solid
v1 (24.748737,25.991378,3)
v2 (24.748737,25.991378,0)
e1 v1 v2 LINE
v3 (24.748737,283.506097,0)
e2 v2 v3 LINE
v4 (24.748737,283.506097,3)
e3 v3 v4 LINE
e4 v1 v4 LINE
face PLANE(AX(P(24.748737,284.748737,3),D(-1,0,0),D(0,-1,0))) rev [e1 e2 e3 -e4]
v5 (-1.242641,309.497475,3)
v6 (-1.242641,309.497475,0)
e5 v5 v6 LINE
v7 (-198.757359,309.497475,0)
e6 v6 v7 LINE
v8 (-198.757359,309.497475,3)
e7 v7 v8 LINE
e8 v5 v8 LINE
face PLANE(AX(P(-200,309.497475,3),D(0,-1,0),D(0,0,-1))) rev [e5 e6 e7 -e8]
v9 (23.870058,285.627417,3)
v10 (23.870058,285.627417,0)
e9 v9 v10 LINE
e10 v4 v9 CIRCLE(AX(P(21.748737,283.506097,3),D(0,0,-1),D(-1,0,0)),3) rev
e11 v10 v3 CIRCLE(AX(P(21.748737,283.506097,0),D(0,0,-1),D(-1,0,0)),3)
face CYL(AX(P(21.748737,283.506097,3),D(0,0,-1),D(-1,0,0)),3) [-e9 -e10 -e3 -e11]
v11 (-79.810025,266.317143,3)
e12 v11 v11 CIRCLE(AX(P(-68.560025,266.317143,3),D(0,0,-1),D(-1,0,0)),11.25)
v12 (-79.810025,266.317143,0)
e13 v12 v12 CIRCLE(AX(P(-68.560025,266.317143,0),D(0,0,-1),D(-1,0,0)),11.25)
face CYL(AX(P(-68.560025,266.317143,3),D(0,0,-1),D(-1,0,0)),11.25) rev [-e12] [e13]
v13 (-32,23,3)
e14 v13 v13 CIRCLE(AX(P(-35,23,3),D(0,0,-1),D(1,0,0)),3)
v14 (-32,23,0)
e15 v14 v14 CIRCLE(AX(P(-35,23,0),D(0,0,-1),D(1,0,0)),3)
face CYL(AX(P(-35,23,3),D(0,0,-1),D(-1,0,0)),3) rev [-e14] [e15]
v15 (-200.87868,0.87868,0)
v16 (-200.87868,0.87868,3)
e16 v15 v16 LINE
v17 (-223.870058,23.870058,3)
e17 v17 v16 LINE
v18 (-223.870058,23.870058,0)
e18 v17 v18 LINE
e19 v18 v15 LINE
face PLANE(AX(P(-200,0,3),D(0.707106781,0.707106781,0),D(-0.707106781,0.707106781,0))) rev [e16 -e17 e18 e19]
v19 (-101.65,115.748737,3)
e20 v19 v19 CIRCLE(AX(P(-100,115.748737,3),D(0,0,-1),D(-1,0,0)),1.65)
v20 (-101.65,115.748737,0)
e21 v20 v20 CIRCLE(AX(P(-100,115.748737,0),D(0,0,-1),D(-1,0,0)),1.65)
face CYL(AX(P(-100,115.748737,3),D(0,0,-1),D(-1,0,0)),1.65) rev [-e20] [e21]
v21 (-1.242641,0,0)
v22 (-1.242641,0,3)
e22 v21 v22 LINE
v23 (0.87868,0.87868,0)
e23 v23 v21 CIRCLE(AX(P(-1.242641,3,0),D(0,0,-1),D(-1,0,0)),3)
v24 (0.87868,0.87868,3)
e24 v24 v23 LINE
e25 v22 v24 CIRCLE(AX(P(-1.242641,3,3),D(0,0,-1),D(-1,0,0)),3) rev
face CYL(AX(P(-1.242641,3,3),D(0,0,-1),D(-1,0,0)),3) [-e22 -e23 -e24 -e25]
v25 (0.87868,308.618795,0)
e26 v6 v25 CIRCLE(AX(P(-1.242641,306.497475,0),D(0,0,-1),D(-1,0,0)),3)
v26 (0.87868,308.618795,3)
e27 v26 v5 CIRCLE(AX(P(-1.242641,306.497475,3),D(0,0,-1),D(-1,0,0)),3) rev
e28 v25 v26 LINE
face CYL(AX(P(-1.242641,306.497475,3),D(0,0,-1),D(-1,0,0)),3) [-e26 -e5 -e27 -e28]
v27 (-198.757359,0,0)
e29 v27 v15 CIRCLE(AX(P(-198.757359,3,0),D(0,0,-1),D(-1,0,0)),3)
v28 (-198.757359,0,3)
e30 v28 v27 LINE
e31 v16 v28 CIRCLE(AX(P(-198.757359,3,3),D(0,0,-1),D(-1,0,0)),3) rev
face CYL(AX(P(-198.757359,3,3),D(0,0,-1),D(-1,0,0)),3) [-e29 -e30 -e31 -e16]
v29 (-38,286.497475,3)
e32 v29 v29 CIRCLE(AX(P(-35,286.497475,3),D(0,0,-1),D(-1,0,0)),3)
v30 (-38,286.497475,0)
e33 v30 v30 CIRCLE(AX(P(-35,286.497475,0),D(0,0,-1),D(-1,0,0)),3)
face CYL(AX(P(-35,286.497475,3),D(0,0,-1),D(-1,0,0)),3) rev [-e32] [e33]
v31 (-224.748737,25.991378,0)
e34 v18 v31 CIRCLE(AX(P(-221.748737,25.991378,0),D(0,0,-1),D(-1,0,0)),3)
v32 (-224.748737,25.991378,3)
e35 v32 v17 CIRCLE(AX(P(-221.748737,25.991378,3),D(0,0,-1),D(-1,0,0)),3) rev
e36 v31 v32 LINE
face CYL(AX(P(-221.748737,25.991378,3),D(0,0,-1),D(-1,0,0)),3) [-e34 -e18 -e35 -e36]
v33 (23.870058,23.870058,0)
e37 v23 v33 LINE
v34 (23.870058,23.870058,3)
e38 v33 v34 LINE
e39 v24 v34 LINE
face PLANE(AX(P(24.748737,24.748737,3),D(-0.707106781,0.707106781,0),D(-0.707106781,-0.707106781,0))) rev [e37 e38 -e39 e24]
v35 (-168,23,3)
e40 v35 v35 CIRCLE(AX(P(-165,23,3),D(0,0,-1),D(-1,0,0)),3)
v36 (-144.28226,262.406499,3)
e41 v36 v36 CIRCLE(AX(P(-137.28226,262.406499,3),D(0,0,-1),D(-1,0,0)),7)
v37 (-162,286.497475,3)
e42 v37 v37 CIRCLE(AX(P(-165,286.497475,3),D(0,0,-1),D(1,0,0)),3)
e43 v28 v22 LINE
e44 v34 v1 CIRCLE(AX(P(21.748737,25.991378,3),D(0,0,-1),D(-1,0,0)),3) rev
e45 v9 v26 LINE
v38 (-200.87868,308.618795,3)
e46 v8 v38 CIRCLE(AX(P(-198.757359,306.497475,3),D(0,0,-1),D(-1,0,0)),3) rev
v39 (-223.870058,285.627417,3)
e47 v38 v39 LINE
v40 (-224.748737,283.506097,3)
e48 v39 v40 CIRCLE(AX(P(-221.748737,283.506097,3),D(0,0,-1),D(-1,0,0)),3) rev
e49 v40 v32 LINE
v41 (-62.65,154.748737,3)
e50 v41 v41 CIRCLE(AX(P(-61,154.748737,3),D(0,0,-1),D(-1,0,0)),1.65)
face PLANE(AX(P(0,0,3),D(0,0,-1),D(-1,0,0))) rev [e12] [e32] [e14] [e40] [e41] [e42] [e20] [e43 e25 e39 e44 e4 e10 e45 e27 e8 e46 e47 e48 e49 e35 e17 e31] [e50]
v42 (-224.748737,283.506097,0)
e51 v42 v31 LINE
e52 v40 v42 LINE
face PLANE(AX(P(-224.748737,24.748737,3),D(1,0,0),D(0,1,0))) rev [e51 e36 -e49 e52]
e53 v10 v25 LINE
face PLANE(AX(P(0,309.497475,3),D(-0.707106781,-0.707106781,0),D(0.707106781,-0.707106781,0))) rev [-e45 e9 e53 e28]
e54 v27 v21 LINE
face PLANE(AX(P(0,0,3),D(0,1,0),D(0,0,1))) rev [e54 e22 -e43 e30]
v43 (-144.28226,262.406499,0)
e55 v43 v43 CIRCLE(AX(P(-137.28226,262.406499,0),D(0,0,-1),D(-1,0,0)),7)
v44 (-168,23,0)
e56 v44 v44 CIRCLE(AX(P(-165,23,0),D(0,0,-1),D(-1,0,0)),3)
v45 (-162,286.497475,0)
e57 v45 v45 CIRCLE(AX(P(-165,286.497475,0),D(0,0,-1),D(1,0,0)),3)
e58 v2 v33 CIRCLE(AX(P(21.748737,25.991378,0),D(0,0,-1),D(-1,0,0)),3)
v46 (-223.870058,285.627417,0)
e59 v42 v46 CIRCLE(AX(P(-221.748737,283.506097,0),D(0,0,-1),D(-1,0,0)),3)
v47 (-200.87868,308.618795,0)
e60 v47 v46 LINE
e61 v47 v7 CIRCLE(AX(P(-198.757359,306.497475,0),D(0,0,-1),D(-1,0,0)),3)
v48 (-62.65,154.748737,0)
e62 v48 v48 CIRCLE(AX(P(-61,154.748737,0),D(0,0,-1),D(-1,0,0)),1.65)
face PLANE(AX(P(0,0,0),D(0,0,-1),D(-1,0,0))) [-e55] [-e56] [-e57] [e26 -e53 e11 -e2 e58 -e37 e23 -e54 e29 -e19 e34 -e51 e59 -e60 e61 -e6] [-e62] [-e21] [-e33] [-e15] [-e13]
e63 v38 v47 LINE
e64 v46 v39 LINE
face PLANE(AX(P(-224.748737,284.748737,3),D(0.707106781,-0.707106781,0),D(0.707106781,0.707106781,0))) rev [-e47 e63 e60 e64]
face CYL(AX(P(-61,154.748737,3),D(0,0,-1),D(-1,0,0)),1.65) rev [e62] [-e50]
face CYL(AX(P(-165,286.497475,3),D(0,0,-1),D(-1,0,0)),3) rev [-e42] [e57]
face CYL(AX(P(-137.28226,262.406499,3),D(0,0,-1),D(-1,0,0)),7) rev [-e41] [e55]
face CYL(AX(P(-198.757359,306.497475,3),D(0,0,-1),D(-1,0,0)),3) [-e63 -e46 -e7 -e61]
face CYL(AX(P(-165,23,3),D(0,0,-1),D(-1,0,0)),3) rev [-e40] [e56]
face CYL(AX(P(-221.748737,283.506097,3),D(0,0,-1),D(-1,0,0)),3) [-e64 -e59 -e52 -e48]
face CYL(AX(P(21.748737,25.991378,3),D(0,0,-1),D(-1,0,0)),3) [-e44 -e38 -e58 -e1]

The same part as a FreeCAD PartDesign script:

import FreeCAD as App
import Part
import Sketcher
from FreeCAD import Vector
Q = App.Units.Quantity


def edges_at(feature, points):
    """Names of the edges that pass closest to the given points."""
    edges = feature.Shape.Edges
    near = lambda p: min(range(len(edges)), key=lambda i: edges[i].distToShape(Part.Vertex(*p))[0])
    return sorted({f"Edge{near(p) + 1}" for p in points})


def add_polygon(sketch, points):
    """Adds a closed chain of lines whose ends are joined by coincident constraints."""
    first, n = sketch.GeometryCount, len(points)
    for a, b in zip(points, points[1:] + points[:1]):
        sketch.addGeometry(Part.LineSegment(App.Vector(*a, 0), App.Vector(*b, 0)), False)
    for i in range(n):
        sketch.addConstraint(Sketcher.Constraint("Coincident", first + i, 2, first + (i + 1) % n, 1))

doc = App.newDocument("Part")
body = doc.addObject("PartDesign::Body", "Body")

sketch1 = doc.addObject("Sketcher::SketchObject", "Sketch")
body.addObject(sketch1)
sketch1.AttachmentSupport = (doc.XY_Plane, [""])
sketch1.MapMode = "FlatFace"
add_polygon(sketch1, [(-200, 0), (0, 0), (25, 25), (25, 285), (0, 309), (-200, 309), (-225, 285), (-225, 25)])
sketch1.addConstraint(Sketcher.Constraint("Horizontal", 0))
sketch1.addConstraint(Sketcher.Constraint("Vertical", 2))
sketch1.addConstraint(Sketcher.Constraint("Horizontal", 4))
sketch1.addConstraint(Sketcher.Constraint("Vertical", 6))
sketch1.addConstraint(Sketcher.Constraint("Coincident", 0, 2, -1, 1))
sketch1.addConstraint(Sketcher.Constraint("PointOnObject", 3, 2, -2))
sketch1.addConstraint(Sketcher.Constraint("Perpendicular", 1, 3))
sketch1.addConstraint(Sketcher.Constraint("Perpendicular", 3, 5))
sketch1.addConstraint(Sketcher.Constraint("Perpendicular", 5, 7))
sketch1.addConstraint(Sketcher.Constraint("Horizontal", 2, 2, 5, 2))
sketch1.addConstraint(Sketcher.Constraint("Horizontal", 1, 2, 6, 2))
sketch1.addConstraint(Sketcher.Constraint("Vertical", 4, 2, 7, 2))
sketch1.addConstraint(Sketcher.Constraint("DistanceX", 0, 1, 0, 2, Q("200 mm")))
sketch1.addConstraint(Sketcher.Constraint("DistanceY", 2, 1, 2, 2, Q("260 mm")))
sketch1.addConstraint(Sketcher.Constraint("Distance", 1, Q("35 mm")))
pad1 = doc.addObject("PartDesign::Pad", "Pad")
body.addObject(pad1)
pad1.Profile = sketch1
pad1.Length = 3
doc.recompute()

fillet = doc.addObject("PartDesign::Fillet", "Fillet")
body.addObject(fillet)
fillet.Base = (pad1, edges_at(pad1, [
    (0, 0, 1.5),
    (-200, 0, 1.5),
    (-224.749, 24.749, 1.5),
    (-224.749, 284.749, 1.5),
    (-200, 309.497, 1.5),
    (0, 309.497, 1.5),
    (24.749, 284.749, 1.5),
    (24.749, 24.749, 1.5),
]))
fillet.Radius = 3

sketch2 = doc.addObject("Sketcher::SketchObject", "Sketch001")
body.addObject(sketch2)
sketch2.AttachmentSupport = (doc.XY_Plane, [""])
sketch2.MapMode = "FlatFace"
sketch2.addGeometry(Part.Circle(Vector(-35, 286.5, 0), Vector(0, 0, 1), 3), False)
sketch2.addGeometry(Part.Circle(Vector(-165, 286.5, 0), Vector(0, 0, 1), 3), False)
sketch2.addGeometry(Part.Circle(Vector(-165, 23, 0), Vector(0, 0, 1), 3), False)
sketch2.addGeometry(Part.Circle(Vector(-35, 23, 0), Vector(0, 0, 1), 3), False)
sketch2.addConstraint(Sketcher.Constraint("Equal", 0, 1))
sketch2.addConstraint(Sketcher.Constraint("Equal", 1, 2))
sketch2.addConstraint(Sketcher.Constraint("Equal", 2, 3))
sketch2.addConstraint(Sketcher.Constraint("Horizontal", 0, 3, 1, 3))
sketch2.addConstraint(Sketcher.Constraint("Horizontal", 2, 3, 3, 3))
sketch2.addConstraint(Sketcher.Constraint("Vertical", 1, 3, 2, 3))
sketch2.addConstraint(Sketcher.Constraint("Vertical", 0, 3, 3, 3))
sketch2.addConstraint(Sketcher.Constraint("Diameter", 0, Q("6 mm")))
sketch2.addConstraint(Sketcher.Constraint("DistanceX", 0, 3, -1, 1, Q("35 mm")))
sketch2.addConstraint(Sketcher.Constraint("DistanceX", 1, 3, -1, 1, Q("165 mm")))
sketch2.addConstraint(Sketcher.Constraint("DistanceY", -1, 1, 2, 3, Q("23 mm")))
sketch2.addConstraint(Sketcher.Constraint("DistanceY", -1, 1, 0, 3, Q("286.497475 mm")))
pocket1 = doc.addObject("PartDesign::Pocket", "Pocket")
body.addObject(pocket1)
pocket1.Profile = sketch2
pocket1.Type = "ThroughAll"
pocket1.Reversed = True

sketch3 = doc.addObject("Sketcher::SketchObject", "Sketch002")
body.addObject(sketch3)
sketch3.AttachmentSupport = (doc.XY_Plane, [""])
sketch3.MapMode = "FlatFace"
sketch3.addGeometry(Part.Circle(Vector(-61, 154.7, 0), Vector(0, 0, 1), 1.6), False)
sketch3.addGeometry(Part.Circle(Vector(-100, 115.7, 0), Vector(0, 0, 1), 1.6), False)
sketch3.addConstraint(Sketcher.Constraint("Equal", 0, 1))
sketch3.addConstraint(Sketcher.Constraint("Diameter", 0, Q("3.3 mm")))
sketch3.addConstraint(Sketcher.Constraint("DistanceX", 0, 3, -1, 1, Q("61 mm")))
sketch3.addConstraint(Sketcher.Constraint("DistanceX", 1, 3, -1, 1, Q("100 mm")))
sketch3.addConstraint(Sketcher.Constraint("DistanceY", 1, 3, 0, 3, Q("39 mm")))
sketch3.addConstraint(Sketcher.Constraint("DistanceY", -1, 1, 0, 3, Q("154.748737 mm")))
pocket2 = doc.addObject("PartDesign::Pocket", "Pocket001")
body.addObject(pocket2)
pocket2.Profile = sketch3
pocket2.Type = "ThroughAll"
pocket2.Reversed = True

sketch4 = doc.addObject("Sketcher::SketchObject", "Sketch003")
body.addObject(sketch4)
sketch4.AttachmentSupport = (doc.XY_Plane, [""])
sketch4.MapMode = "FlatFace"
sketch4.addGeometry(Part.Circle(Vector(-69, 266, 0), Vector(0, 0, 1), 11), False)
sketch4.addConstraint(Sketcher.Constraint("Diameter", 0, Q("22.5 mm")))
sketch4.addConstraint(Sketcher.Constraint("DistanceX", 0, 3, -1, 1, Q("68.560025 mm")))
sketch4.addConstraint(Sketcher.Constraint("DistanceY", -1, 1, 0, 3, Q("266.317143 mm")))
pocket3 = doc.addObject("PartDesign::Pocket", "Pocket002")
body.addObject(pocket3)
pocket3.Profile = sketch4
pocket3.Type = "ThroughAll"
pocket3.Reversed = True

sketch5 = doc.addObject("Sketcher::SketchObject", "Sketch004")
body.addObject(sketch5)
sketch5.AttachmentSupport = (doc.XY_Plane, [""])
sketch5.MapMode = "FlatFace"
sketch5.addGeometry(Part.Circle(Vector(-137, 262, 0), Vector(0, 0, 1), 7), False)
sketch5.addConstraint(Sketcher.Constraint("Diameter", 0, Q("14 mm")))
sketch5.addConstraint(Sketcher.Constraint("DistanceY", -1, 1, 0, 3, Q("262.406499 mm")))
sketch5.addConstraint(Sketcher.Constraint("DistanceX", 0, 3, -1, 1, Q("137.28226 mm")))
pocket4 = doc.addObject("PartDesign::Pocket", "Pocket003")
body.addObject(pocket4)
pocket4.Profile = sketch5
pocket4.Type = "ThroughAll"
pocket4.Reversed = True

doc.recompute()
